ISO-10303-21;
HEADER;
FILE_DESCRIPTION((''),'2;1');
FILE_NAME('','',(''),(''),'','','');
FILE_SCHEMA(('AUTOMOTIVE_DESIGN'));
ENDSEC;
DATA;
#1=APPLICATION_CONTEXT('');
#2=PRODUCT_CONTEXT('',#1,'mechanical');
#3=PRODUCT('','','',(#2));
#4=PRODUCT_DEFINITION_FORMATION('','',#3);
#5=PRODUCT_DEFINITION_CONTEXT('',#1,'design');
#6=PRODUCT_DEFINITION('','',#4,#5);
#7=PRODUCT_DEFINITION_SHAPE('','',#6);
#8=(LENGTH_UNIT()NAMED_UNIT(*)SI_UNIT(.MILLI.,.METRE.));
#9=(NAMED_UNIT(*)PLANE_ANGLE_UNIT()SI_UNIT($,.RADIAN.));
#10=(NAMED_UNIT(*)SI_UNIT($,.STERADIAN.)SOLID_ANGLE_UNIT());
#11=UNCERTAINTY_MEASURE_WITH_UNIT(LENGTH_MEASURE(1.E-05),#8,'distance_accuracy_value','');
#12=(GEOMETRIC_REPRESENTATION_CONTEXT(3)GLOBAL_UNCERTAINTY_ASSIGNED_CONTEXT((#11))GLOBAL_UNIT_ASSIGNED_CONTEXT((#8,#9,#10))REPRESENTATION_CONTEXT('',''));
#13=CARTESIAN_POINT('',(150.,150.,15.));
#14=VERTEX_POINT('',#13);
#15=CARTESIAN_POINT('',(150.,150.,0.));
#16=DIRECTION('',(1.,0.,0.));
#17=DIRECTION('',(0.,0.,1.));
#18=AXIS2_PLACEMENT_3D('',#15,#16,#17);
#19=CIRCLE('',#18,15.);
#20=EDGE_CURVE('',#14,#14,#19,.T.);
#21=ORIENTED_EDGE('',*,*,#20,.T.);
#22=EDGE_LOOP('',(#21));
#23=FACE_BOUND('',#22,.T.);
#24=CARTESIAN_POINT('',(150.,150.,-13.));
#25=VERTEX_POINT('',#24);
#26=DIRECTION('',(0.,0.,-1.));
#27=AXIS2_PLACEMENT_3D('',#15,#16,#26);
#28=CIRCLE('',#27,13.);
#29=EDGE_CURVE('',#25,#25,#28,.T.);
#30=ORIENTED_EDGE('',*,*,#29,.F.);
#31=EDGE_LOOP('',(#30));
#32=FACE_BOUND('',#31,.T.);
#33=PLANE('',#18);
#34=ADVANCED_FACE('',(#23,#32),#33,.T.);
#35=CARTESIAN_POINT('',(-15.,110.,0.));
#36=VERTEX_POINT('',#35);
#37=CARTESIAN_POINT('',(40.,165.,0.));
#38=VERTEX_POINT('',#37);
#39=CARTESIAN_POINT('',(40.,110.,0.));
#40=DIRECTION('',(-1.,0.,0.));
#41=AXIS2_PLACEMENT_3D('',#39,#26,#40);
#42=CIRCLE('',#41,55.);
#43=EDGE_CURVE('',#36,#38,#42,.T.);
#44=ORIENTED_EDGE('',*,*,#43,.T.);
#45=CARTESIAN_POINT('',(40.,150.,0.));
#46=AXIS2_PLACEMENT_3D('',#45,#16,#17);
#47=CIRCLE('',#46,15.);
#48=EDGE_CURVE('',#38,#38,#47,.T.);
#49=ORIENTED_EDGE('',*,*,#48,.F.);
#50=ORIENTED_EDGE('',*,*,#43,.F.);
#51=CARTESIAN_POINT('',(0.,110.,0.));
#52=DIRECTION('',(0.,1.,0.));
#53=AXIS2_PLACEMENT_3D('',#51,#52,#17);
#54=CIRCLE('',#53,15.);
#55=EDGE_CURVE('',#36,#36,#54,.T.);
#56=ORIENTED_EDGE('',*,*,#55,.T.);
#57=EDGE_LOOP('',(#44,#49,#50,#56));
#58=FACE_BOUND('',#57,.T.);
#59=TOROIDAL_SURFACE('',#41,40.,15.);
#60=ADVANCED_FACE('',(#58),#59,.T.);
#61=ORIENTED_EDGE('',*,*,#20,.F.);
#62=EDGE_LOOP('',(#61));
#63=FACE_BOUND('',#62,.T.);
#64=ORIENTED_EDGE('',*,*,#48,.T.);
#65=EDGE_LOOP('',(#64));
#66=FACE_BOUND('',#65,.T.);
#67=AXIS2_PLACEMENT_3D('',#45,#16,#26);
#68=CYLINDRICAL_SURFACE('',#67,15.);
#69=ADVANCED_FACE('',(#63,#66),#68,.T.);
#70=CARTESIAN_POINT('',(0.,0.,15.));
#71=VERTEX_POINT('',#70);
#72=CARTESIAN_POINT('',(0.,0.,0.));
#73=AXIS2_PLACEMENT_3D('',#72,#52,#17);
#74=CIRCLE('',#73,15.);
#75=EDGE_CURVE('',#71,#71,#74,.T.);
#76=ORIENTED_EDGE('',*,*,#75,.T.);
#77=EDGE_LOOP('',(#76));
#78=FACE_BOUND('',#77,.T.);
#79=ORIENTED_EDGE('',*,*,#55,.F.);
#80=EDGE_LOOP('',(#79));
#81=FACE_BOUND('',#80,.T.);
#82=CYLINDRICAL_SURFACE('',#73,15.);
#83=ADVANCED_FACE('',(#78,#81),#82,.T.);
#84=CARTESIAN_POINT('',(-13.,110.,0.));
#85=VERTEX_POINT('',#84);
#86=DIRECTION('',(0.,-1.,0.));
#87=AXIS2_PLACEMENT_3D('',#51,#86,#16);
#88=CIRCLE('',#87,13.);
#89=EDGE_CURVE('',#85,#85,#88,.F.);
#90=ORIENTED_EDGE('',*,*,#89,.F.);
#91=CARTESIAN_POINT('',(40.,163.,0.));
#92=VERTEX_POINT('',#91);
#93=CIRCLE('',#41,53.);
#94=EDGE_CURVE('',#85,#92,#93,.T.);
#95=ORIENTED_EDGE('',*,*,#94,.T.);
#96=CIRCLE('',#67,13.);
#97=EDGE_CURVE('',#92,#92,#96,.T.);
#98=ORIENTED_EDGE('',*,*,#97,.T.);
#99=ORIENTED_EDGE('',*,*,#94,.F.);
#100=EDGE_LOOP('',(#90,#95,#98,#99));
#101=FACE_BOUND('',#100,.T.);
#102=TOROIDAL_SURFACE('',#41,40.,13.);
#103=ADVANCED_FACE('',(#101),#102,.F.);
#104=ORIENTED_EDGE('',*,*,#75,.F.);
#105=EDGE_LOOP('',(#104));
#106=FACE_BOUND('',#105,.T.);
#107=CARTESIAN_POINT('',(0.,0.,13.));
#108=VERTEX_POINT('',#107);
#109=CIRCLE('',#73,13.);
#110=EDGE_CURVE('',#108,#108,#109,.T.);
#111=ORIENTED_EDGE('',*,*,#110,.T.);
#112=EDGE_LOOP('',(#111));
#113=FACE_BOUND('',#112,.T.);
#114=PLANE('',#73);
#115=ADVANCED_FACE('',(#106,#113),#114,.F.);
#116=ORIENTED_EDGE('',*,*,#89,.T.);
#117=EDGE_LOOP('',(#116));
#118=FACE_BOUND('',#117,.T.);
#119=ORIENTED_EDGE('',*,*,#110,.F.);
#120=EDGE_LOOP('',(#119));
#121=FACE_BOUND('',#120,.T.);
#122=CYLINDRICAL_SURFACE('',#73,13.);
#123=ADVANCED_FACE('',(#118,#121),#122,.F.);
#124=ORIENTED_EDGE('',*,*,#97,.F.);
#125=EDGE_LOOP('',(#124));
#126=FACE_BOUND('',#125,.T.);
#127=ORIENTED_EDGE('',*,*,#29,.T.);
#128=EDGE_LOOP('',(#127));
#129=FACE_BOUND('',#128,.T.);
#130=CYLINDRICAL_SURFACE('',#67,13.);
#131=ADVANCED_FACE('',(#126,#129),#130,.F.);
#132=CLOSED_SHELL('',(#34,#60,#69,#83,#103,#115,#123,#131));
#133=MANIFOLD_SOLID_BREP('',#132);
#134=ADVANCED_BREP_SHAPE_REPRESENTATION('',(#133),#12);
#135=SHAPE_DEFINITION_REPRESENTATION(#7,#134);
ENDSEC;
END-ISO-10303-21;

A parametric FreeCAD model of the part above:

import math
import FreeCAD as App
import Part
import Sketcher

V = App.Vector


def faces_at(feature, points):
    """Names of the faces that lie closest to the given points."""
    faces = feature.Shape.Faces
    near = lambda p: min(range(len(faces)), key=lambda i: faces[i].distToShape(Part.Vertex(*p))[0])
    return sorted({f"Face{near(p) + 1}" for p in points})

doc = App.newDocument("Part")
body = doc.addObject("PartDesign::Body", "Body")

# Sketch on XZ plane
sketch1 = body.newObject("Sketcher::SketchObject", "Sketch")
sketch1.AttachmentSupport = (doc.getObject("XZ_Plane"), [""])
sketch1.MapMode = "FlatFace"
sketch1.addGeometry(Part.Circle(V(0, 0, 0), V(0, 0, 1), 15), False)
sketch1.addConstraint([
    Sketcher.Constraint("Coincident", 0, 3, -1, 1),
    Sketcher.Constraint("Diameter", 0, 30.0),
])

# Sketch on XY plane
sketch2 = body.newObject("Sketcher::SketchObject", "Sketch001")
sketch2.AttachmentSupport = (doc.getObject("XY_Plane"), [""])
sketch2.MapMode = "FlatFace"
sketch2.addGeometry([
    Part.LineSegment(V(0, 0, 0), V(0, 110, 0)),
    Part.ArcOfCircle(Part.Circle(V(40, 110, 0), V(0, 0, 1), 40), math.radians(90), math.radians(180)),
    Part.LineSegment(V(40, 150, 0), V(150, 150, 0)),
], False)
sketch2.addConstraint([
    Sketcher.Constraint("Tangent", 0, 2, 1, 2),
    Sketcher.Constraint("Tangent", 1, 1, 2, 1),
    Sketcher.Constraint("Vertical", 0),
    Sketcher.Constraint("Horizontal", 2),
    Sketcher.Constraint("Coincident", 0, 1, -1, 1),
    Sketcher.Constraint("Equal", 2, 0),
    Sketcher.Constraint("Radius", 1, 40.0),
    Sketcher.Constraint("DistanceX", 2, 1, 2, 2, 110.0),
])
doc.recompute()

additivepipe = body.newObject("PartDesign::AdditivePipe", "AdditivePipe")
additivepipe.Profile = sketch1
additivepipe.Spine = (sketch2, ["Edge1", "Edge2", "Edge3"])
doc.recompute()

thickness = body.newObject("PartDesign::Thickness", "Thickness")
thickness.Base = (additivepipe, faces_at(additivepipe, [(150, 150, 0), (0, 0, 0)]))
thickness.Value = 2
thickness.Reversed = True
thickness.Join = "Intersection"

doc.recompute()
